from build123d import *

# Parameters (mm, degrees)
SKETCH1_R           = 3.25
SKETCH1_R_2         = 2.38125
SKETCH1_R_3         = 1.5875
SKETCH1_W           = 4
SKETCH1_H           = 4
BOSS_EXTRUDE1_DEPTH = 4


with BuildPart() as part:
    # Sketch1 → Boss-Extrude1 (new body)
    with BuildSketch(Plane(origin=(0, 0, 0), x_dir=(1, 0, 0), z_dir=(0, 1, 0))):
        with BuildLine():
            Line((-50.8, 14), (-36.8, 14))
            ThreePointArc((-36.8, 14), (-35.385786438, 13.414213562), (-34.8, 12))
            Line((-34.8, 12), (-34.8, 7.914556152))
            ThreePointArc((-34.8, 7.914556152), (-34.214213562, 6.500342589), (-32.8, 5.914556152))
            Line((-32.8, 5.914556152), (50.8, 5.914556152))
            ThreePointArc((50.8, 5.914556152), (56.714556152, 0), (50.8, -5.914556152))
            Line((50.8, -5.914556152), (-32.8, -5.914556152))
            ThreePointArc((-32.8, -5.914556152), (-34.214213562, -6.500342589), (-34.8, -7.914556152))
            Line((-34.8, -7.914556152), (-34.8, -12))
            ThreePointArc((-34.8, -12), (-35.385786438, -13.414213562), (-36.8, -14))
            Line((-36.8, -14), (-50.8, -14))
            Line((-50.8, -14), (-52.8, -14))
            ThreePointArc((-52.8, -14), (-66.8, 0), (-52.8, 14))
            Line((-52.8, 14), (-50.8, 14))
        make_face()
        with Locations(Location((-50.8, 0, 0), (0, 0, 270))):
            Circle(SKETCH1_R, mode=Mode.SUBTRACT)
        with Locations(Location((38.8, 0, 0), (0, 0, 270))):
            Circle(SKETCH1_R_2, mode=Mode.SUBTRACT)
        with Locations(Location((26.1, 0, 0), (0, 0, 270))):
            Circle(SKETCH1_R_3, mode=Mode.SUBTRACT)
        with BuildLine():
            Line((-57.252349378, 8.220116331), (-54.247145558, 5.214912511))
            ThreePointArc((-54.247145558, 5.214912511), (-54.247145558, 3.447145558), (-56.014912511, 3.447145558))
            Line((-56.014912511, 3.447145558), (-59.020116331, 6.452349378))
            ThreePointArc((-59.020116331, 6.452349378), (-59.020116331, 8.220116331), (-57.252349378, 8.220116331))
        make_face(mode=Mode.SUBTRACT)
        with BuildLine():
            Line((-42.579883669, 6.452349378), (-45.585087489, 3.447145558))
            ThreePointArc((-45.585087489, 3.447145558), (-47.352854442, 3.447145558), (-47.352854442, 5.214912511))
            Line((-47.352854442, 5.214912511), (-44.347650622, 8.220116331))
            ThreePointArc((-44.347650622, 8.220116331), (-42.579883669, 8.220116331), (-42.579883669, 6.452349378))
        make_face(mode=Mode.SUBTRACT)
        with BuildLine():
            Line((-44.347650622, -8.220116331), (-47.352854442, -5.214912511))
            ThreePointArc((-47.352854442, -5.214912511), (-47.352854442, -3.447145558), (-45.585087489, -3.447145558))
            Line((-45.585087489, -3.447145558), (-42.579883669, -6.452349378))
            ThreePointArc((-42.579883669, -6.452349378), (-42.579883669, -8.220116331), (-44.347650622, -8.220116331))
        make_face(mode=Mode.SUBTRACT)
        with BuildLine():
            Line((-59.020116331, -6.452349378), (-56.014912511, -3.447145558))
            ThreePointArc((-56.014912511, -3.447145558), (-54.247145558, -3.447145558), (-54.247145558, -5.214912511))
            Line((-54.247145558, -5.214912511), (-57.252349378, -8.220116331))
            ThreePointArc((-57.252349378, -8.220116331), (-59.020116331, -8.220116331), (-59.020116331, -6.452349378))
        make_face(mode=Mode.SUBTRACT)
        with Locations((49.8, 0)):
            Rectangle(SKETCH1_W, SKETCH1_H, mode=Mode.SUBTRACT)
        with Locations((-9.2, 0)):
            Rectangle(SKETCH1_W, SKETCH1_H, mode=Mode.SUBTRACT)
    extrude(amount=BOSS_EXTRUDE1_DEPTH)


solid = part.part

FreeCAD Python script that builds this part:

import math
import FreeCAD as App
import Part
import Sketcher

V = App.Vector
Q = App.Units.Quantity

doc = App.newDocument("Part")
body = doc.addObject("PartDesign::Body", "Body")

# Sketch on XZ plane
sketch1 = doc.addObject("Sketcher::SketchObject", "Sketch")
body.addObject(sketch1)
sketch1.AttachmentSupport = (doc.XZ_Plane, [""])
sketch1.MapMode = "FlatFace"
sketch1.addGeometry(Part.ArcOfCircle(Part.Circle(V(-36.8, -12, 0), V(0, 0, 1), 2), math.radians(-90), math.radians(0)), False)
sketch1.addGeometry(Part.LineSegment(V(-36.8, -14, 0), V(-52.8, -14, 0)), False)
sketch1.addGeometry(Part.ArcOfCircle(Part.Circle(V(-52.8, 0, 0), V(0, 0, 1), 14), math.radians(90), math.radians(270)), False)
sketch1.addGeometry(Part.LineSegment(V(-52.8, 14, 0), V(-36.8, 14, 0)), False)
sketch1.addGeometry(Part.ArcOfCircle(Part.Circle(V(-36.8, 12, 0), V(0, 0, 1), 2), math.radians(0), math.radians(90)), False)
sketch1.addGeometry(Part.LineSegment(V(-34.8, 12, 0), V(-34.8, 7.9, 0)), False)
sketch1.addGeometry(Part.ArcOfCircle(Part.Circle(V(-32.8, 7.9, 0), V(0, 0, 1), 2), math.radians(180), math.radians(270)), False)
sketch1.addGeometry(Part.LineSegment(V(-32.8, 5.9, 0), V(50.8, 5.9, 0)), False)
sketch1.addGeometry(Part.ArcOfCircle(Part.Circle(V(50.8, 0, 0), V(0, 0, 1), 5.9), math.radians(-90), math.radians(90)), False)
sketch1.addGeometry(Part.LineSegment(V(50.8, -5.9, 0), V(-32.8, -5.9, 0)), False)
sketch1.addGeometry(Part.ArcOfCircle(Part.Circle(V(-32.8, -7.9, 0), V(0, 0, 1), 2), math.radians(90), math.radians(180)), False)
sketch1.addGeometry(Part.LineSegment(V(-34.8, -7.9, 0), V(-34.8, -12, 0)), False)
sketch1.addGeometry(Part.LineSegment(V(-44.3, 8.2, 0), V(-47.4, 5.2, 0)), False)
sketch1.addGeometry(Part.ArcOfCircle(Part.Circle(V(-46.5, 4.3, 0), V(0, 0, 1), 1.2), math.radians(135), math.radians(315)), False)
sketch1.addGeometry(Part.LineSegment(V(-45.6, 3.4, 0), V(-42.6, 6.5, 0)), False)
sketch1.addGeometry(Part.ArcOfCircle(Part.Circle(V(-43.5, 7.3, 0), V(0, 0, 1), 1.2), math.radians(-45), math.radians(135)), False)
sketch1.addGeometry(Part.LineSegment(V(-59, 6.5, 0), V(-56, 3.4, 0)), False)
sketch1.addGeometry(Part.ArcOfCircle(Part.Circle(V(-55.1, 4.3, 0), V(0, 0, 1), 1.2), math.radians(-135), math.radians(45)), False)
sketch1.addGeometry(Part.LineSegment(V(-54.2, 5.2, 0), V(-57.3, 8.2, 0)), False)
sketch1.addGeometry(Part.ArcOfCircle(Part.Circle(V(-58.1, 7.3, 0), V(0, 0, 1), 1.2), math.radians(45), math.radians(225)), False)
sketch1.addGeometry(Part.LineSegment(V(47.8, 2, 0), V(47.8, -2, 0)), False)
sketch1.addGeometry(Part.LineSegment(V(47.8, -2, 0), V(51.8, -2, 0)), False)
sketch1.addGeometry(Part.LineSegment(V(51.8, -2, 0), V(51.8, 2, 0)), False)
sketch1.addGeometry(Part.LineSegment(V(51.8, 2, 0), V(47.8, 2, 0)), False)
sketch1.addGeometry(Part.Circle(V(38.8, 0, 0), V(0, 0, 1), 2.4), False)
sketch1.addGeometry(Part.Circle(V(26.1, 0, 0), V(0, 0, 1), 1.6), False)
sketch1.addGeometry(Part.LineSegment(V(-11.2, 2, 0), V(-11.2, -2, 0)), False)
sketch1.addGeometry(Part.LineSegment(V(-11.2, -2, 0), V(-7.2, -2, 0)), False)
sketch1.addGeometry(Part.LineSegment(V(-7.2, -2, 0), V(-7.2, 2, 0)), False)
sketch1.addGeometry(Part.LineSegment(V(-7.2, 2, 0), V(-11.2, 2, 0)), False)
sketch1.addGeometry(Part.Circle(V(-50.8, 0, 0), V(0, 0, 1), 3.2), False)
sketch1.addGeometry(Part.LineSegment(V(-42.6, -6.5, 0), V(-45.6, -3.4, 0)), False)
sketch1.addGeometry(Part.ArcOfCircle(Part.Circle(V(-46.5, -4.3, 0), V(0, 0, 1), 1.2), math.radians(45), math.radians(225)), False)
sketch1.addGeometry(Part.LineSegment(V(-47.4, -5.2, 0), V(-44.3, -8.2, 0)), False)
sketch1.addGeometry(Part.ArcOfCircle(Part.Circle(V(-43.5, -7.3, 0), V(0, 0, 1), 1.2), math.radians(-135), math.radians(45)), False)
sketch1.addGeometry(Part.LineSegment(V(-57.3, -8.2, 0), V(-54.2, -5.2, 0)), False)
sketch1.addGeometry(Part.ArcOfCircle(Part.Circle(V(-55.1, -4.3, 0), V(0, 0, 1), 1.2), math.radians(-45), math.radians(135)), False)
sketch1.addGeometry(Part.LineSegment(V(-56, -3.4, 0), V(-59, -6.5, 0)), False)
sketch1.addGeometry(Part.ArcOfCircle(Part.Circle(V(-58.1, -7.3, 0), V(0, 0, 1), 1.2), math.radians(135), math.radians(315)), False)
sketch1.addConstraint(Sketcher.Constraint("Tangent", 0, 1, 1, 1))
sketch1.addConstraint(Sketcher.Constraint("Tangent", 1, 2, 2, 2))
sketch1.addConstraint(Sketcher.Constraint("Tangent", 2, 1, 3, 1))
sketch1.addConstraint(Sketcher.Constraint("Tangent", 3, 2, 4, 2))
sketch1.addConstraint(Sketcher.Constraint("Tangent", 4, 1, 5, 1))
sketch1.addConstraint(Sketcher.Constraint("Tangent", 5, 2, 6, 1))
sketch1.addConstraint(Sketcher.Constraint("Tangent", 6, 2, 7, 1))
sketch1.addConstraint(Sketcher.Constraint("Tangent", 7, 2, 8, 2))
sketch1.addConstraint(Sketcher.Constraint("Tangent", 8, 1, 9, 1))
sketch1.addConstraint(Sketcher.Constraint("Tangent", 9, 2, 10, 1))
sketch1.addConstraint(Sketcher.Constraint("Tangent", 10, 2, 11, 1))
sketch1.addConstraint(Sketcher.Constraint("Tangent", 11, 2, 0, 2))
sketch1.addConstraint(Sketcher.Constraint("Tangent", 12, 2, 13, 1))
sketch1.addConstraint(Sketcher.Constraint("Tangent", 13, 2, 14, 1))
sketch1.addConstraint(Sketcher.Constraint("Tangent", 14, 2, 15, 1))
sketch1.addConstraint(Sketcher.Constraint("Tangent", 15, 2, 12, 1))
sketch1.addConstraint(Sketcher.Constraint("Tangent", 16, 2, 17, 1))
sketch1.addConstraint(Sketcher.Constraint("Tangent", 17, 2, 18, 1))
sketch1.addConstraint(Sketcher.Constraint("Tangent", 18, 2, 19, 1))
sketch1.addConstraint(Sketcher.Constraint("Tangent", 19, 2, 16, 1))
sketch1.addConstraint(Sketcher.Constraint("Coincident", 20, 2, 21, 1))
sketch1.addConstraint(Sketcher.Constraint("Coincident", 21, 2, 22, 1))
sketch1.addConstraint(Sketcher.Constraint("Coincident", 22, 2, 23, 1))
sketch1.addConstraint(Sketcher.Constraint("Coincident", 23, 2, 20, 1))
sketch1.addConstraint(Sketcher.Constraint("Coincident", 26, 2, 27, 1))
sketch1.addConstraint(Sketcher.Constraint("Coincident", 27, 2, 28, 1))
sketch1.addConstraint(Sketcher.Constraint("Coincident", 28, 2, 29, 1))
sketch1.addConstraint(Sketcher.Constraint("Coincident", 29, 2, 26, 1))
sketch1.addConstraint(Sketcher.Constraint("Tangent", 31, 2, 32, 1))
sketch1.addConstraint(Sketcher.Constraint("Tangent", 32, 2, 33, 1))
sketch1.addConstraint(Sketcher.Constraint("Tangent", 33, 2, 34, 1))
sketch1.addConstraint(Sketcher.Constraint("Tangent", 34, 2, 31, 1))
sketch1.addConstraint(Sketcher.Constraint("Tangent", 35, 2, 36, 1))
sketch1.addConstraint(Sketcher.Constraint("Tangent", 36, 2, 37, 1))
sketch1.addConstraint(Sketcher.Constraint("Tangent", 37, 2, 38, 1))
sketch1.addConstraint(Sketcher.Constraint("Tangent", 38, 2, 35, 1))
sketch1.addConstraint(Sketcher.Constraint("Horizontal", 1))
sketch1.addConstraint(Sketcher.Constraint("Horizontal", 3))
sketch1.addConstraint(Sketcher.Constraint("Vertical", 5))
sketch1.addConstraint(Sketcher.Constraint("Horizontal", 7))
sketch1.addConstraint(Sketcher.Constraint("Horizontal", 9))
sketch1.addConstraint(Sketcher.Constraint("Vertical", 11))
sketch1.addConstraint(Sketcher.Constraint("Vertical", 20))
sketch1.addConstraint(Sketcher.Constraint("Horizontal", 21))
sketch1.addConstraint(Sketcher.Constraint("Vertical", 22))
sketch1.addConstraint(Sketcher.Constraint("Horizontal", 23))
sketch1.addConstraint(Sketcher.Constraint("Vertical", 26))
sketch1.addConstraint(Sketcher.Constraint("Horizontal", 27))
sketch1.addConstraint(Sketcher.Constraint("Vertical", 28))
sketch1.addConstraint(Sketcher.Constraint("Horizontal", 29))
sketch1.addConstraint(Sketcher.Constraint("Equal", 0, 4))
sketch1.addConstraint(Sketcher.Constraint("Equal", 4, 6))
sketch1.addConstraint(Sketcher.Constraint("Equal", 6, 10))
sketch1.addConstraint(Sketcher.Constraint("Equal", 13, 15))
sketch1.addConstraint(Sketcher.Constraint("Equal", 15, 17))
sketch1.addConstraint(Sketcher.Constraint("Equal", 17, 19))
sketch1.addConstraint(Sketcher.Constraint("Equal", 19, 32))
sketch1.addConstraint(Sketcher.Constraint("Equal", 32, 34))
sketch1.addConstraint(Sketcher.Constraint("Equal", 34, 36))
sketch1.addConstraint(Sketcher.Constraint("Equal", 36, 38))
sketch1.addConstraint(Sketcher.Constraint("Symmetric", 8, 3, 30, 3, -1, 1))
sketch1.addConstraint(Sketcher.Constraint("Symmetric", 0, 3, 4, 3, -1))
sketch1.addConstraint(Sketcher.Constraint("Symmetric", 13, 3, 32, 3, -1))
sketch1.addConstraint(Sketcher.Constraint("Symmetric", 15, 3, 34, 3, -1))
sketch1.addConstraint(Sketcher.Constraint("Symmetric", 17, 3, 36, 3, -1))
sketch1.addConstraint(Sketcher.Constraint("Symmetric", 19, 3, 38, 3, -1))
sketch1.addConstraint(Sketcher.Constraint("PointOnObject", 8, 3, -1))
sketch1.addConstraint(Sketcher.Constraint("PointOnObject", 24, 3, -1))
sketch1.addConstraint(Sketcher.Constraint("PointOnObject", 25, 3, -1))
sketch1.addConstraint(Sketcher.Constraint("Perpendicular", 14, 16))
sketch1.addConstraint(Sketcher.Constraint("Parallel", 18, 31))
sketch1.addConstraint(Sketcher.Constraint("Horizontal", 13, 3, 17, 3))
sketch1.addConstraint(Sketcher.Constraint("Horizontal", 15, 3, 19, 3))
sketch1.addConstraint(Sketcher.Constraint("Horizontal", 21, 2, 26, 2))
sketch1.addConstraint(Sketcher.Constraint("Horizontal", 23, 2, 28, 2))
sketch1.addConstraint(Sketcher.Constraint("Equal", 23, 27))
sketch1.addConstraint(Sketcher.Constraint("Equal", 29, 20))
sketch1.addConstraint(Sketcher.Constraint("Radius", 0, Q("2 mm")))
sketch1.addConstraint(Sketcher.Constraint("Radius", 2, Q("14 mm")))
sketch1.addConstraint(Sketcher.Constraint("Diameter", 30, Q("6.5 mm")))
sketch1.addConstraint(Sketcher.Constraint("DistanceX", 1, 2, 1, 1, Q("16 mm")))
sketch1.addConstraint(Sketcher.Constraint("DistanceX", 21, 1, 21, 2, Q("4 mm")))
sketch1.addConstraint(Sketcher.Constraint("Radius", 13, Q("1.25 mm")))
sketch1.addConstraint(Sketcher.Constraint("Diameter", 25, Q("3.175 mm")))
sketch1.addConstraint(Sketcher.Constraint("DistanceX", 7, 1, 7, 2, Q("83.6 mm")))
sketch1.addConstraint(Sketcher.Constraint("DistanceY", 20, 2, -1, 1, Q("2 mm")))
sketch1.addConstraint(Sketcher.Constraint("DistanceX", 24, 3, 8, 3, Q("12 mm")))
sketch1.addConstraint(Sketcher.Constraint("DistanceX", 2, 3, 30, 3, Q("2 mm")))
sketch1.addConstraint(Sketcher.Constraint("DistanceX", 20, 2, 8, 3, Q("3 mm")))
sketch1.addConstraint(Sketcher.Constraint("Diameter", 24, Q("4.7625 mm")))
sketch1.addConstraint(Sketcher.Constraint("DistanceX", -1, 1, 25, 3, Q("26.1 mm")))
sketch1.addConstraint(Sketcher.Constraint("DistanceX", 26, 2, -1, 1, Q("11.2 mm")))
sketch1.addConstraint(Sketcher.Constraint("Distance", 12, Q("4.25 mm")))
sketch1.addConstraint(Sketcher.Constraint("Radius", 8, Q("5.914556 mm")))
sketch1.addConstraint(Sketcher.Constraint("DistanceX", 13, 3, -1, 1, Q("46.468971 mm")))
sketch1.addConstraint(Sketcher.Constraint("DistanceY", -1, 1, 13, 3, Q("4.331029 mm")))
sketch1.addConstraint(Sketcher.Constraint("DistanceX", 17, 3, -1, 1, Q("55.131029 mm")))
pad1 = doc.addObject("PartDesign::Pad", "Pad")
body.addObject(pad1)
pad1.Profile = sketch1
pad1.Length = 4
pad1.Reversed = True

doc.recompute()
